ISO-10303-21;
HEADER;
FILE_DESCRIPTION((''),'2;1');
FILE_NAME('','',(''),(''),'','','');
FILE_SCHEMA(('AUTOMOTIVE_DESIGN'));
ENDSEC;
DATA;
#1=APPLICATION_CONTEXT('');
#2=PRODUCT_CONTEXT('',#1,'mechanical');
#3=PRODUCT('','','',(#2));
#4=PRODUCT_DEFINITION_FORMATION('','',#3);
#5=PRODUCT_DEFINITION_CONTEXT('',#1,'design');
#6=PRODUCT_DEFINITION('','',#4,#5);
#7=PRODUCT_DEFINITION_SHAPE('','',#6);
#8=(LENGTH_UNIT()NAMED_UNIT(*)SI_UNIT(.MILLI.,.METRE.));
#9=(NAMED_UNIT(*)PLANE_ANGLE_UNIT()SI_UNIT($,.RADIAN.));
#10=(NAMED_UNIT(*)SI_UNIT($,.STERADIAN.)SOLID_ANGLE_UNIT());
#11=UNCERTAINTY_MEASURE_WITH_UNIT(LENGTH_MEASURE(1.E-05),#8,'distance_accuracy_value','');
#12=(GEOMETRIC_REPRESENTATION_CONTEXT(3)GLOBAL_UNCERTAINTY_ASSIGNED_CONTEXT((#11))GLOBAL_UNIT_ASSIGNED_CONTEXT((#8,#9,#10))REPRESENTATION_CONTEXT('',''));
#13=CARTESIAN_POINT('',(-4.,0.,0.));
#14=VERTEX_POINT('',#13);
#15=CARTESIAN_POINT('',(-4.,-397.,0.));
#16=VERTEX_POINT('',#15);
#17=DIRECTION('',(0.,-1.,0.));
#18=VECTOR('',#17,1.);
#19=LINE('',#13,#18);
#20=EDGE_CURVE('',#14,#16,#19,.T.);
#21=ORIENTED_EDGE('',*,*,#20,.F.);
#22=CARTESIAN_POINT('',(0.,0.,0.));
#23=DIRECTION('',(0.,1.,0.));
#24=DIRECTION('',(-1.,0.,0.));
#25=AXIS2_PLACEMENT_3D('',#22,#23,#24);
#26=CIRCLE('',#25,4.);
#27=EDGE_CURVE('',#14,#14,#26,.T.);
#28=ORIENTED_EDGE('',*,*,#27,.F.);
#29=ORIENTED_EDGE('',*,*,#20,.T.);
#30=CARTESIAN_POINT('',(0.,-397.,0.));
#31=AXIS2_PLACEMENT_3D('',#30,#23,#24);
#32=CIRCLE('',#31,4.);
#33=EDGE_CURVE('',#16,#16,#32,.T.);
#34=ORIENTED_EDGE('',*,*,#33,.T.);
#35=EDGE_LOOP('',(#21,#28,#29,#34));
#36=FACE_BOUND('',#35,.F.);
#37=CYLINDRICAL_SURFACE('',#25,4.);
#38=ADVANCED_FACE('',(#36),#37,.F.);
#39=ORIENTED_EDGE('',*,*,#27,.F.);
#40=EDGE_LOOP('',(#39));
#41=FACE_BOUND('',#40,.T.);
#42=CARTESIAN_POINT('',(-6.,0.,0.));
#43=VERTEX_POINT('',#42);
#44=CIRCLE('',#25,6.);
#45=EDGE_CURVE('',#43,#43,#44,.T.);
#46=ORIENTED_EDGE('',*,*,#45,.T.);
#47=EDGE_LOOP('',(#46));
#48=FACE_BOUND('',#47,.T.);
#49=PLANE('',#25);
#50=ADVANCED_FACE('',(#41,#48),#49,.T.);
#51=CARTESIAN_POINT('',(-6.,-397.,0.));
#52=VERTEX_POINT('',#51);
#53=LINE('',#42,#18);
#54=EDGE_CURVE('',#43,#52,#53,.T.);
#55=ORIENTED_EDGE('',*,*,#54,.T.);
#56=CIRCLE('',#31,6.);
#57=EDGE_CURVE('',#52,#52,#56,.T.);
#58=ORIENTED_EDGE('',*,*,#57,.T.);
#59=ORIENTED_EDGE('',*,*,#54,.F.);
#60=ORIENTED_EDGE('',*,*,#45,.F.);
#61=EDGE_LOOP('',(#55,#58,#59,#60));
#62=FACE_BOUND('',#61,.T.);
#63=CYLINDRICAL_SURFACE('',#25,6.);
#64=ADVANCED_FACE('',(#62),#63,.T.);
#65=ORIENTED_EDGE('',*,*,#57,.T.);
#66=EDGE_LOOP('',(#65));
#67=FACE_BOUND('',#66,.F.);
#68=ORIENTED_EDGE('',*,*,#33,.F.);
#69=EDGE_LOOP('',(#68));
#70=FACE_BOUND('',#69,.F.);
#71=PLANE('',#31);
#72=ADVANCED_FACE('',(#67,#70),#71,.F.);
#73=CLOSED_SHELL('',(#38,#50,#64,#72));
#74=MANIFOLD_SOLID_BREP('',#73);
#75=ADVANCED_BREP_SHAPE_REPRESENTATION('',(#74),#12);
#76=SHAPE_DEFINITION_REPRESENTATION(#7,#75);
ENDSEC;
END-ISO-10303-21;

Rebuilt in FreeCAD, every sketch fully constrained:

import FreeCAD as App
import Part
import Sketcher

doc = App.newDocument("Part")
body = doc.addObject("PartDesign::Body", "Body")

sketch1 = body.newObject("Sketcher::SketchObject", "Sketch")
sketch1.AttachmentSupport = (doc.getObject("XZ_Plane"), [""])
sketch1.MapMode = "FlatFace"
sketch1.addGeometry([
    Part.Circle(App.Vector(0, 0, 0), App.Vector(0, 0, 1), 6),
    Part.Circle(App.Vector(0, 0, 0), App.Vector(0, 0, 1), 4),
], False)
sketch1.addConstraint([
    Sketcher.Constraint("Coincident", 0, 3, -1, 1),
    Sketcher.Constraint("Coincident", 1, 3, -1, 1),
    Sketcher.Constraint("Diameter", 0, 12.0),
    Sketcher.Constraint("Diameter", 1, 8.0),
])
pad1 = body.newObject("PartDesign::Pad", "Pad")
pad1.Profile = sketch1
pad1.Length = 397

doc.recompute()
